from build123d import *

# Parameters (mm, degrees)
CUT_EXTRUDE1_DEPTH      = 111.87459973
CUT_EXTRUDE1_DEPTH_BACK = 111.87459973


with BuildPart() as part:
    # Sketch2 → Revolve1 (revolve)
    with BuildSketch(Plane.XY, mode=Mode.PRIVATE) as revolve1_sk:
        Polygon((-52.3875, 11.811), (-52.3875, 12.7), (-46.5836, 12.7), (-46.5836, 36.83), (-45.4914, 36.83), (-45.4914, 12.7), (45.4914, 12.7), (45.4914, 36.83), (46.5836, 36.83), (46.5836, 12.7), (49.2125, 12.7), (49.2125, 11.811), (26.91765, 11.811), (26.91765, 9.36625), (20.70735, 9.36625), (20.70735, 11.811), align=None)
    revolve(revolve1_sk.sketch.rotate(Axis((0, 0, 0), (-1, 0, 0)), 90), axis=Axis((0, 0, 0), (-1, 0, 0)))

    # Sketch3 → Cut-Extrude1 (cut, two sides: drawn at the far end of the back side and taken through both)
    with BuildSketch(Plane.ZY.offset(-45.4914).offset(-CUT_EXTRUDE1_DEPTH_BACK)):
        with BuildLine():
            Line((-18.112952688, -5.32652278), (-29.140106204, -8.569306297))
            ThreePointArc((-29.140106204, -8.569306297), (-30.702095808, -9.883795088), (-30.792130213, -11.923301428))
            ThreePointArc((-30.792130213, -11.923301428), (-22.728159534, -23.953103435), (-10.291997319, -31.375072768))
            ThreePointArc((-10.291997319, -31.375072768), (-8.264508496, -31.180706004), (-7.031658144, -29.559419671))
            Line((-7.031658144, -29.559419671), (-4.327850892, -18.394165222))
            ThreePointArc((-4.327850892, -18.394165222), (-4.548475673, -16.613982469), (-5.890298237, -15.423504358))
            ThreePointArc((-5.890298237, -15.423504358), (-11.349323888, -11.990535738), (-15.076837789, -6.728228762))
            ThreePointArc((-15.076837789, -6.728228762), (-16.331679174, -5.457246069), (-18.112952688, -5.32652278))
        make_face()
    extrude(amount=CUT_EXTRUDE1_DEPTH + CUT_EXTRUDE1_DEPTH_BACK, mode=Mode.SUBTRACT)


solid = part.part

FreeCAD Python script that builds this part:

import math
import FreeCAD as App
import Part
import Sketcher
Q = App.Units.Quantity


def add_polygon(sketch, points):
    """Adds a closed chain of lines whose ends are joined by coincident constraints."""
    first, n = sketch.GeometryCount, len(points)
    for a, b in zip(points, points[1:] + points[:1]):
        sketch.addGeometry(Part.LineSegment(App.Vector(*a, 0), App.Vector(*b, 0)), False)
    for i in range(n):
        sketch.addConstraint(Sketcher.Constraint("Coincident", first + i, 2, first + (i + 1) % n, 1))

doc = App.newDocument("Part")
body = doc.addObject("PartDesign::Body", "Body")

# Sketch on XY plane
sketch1 = body.newObject("Sketcher::SketchObject", "Sketch")
sketch1.AttachmentSupport = (doc.getObject("XY_Plane"), [""])
sketch1.MapMode = "FlatFace"
add_polygon(sketch1, [(-52.3875, 12.7), (-52.3875, 11.811), (20.70735, 11.811), (20.70735, 9.36625), (26.91765, 9.36625), (26.91765, 11.811), (49.2125, 11.811), (49.2125, 12.7), (46.5836, 12.7), (46.5836, 36.83), (45.4914, 36.83), (45.4914, 12.7), (-45.4914, 12.7), (-45.4914, 36.83), (-46.5836, 36.83), (-46.5836, 12.7)])  # lines 0-15
sketch1.addConstraint(Sketcher.Constraint("Vertical", 0))
sketch1.addConstraint(Sketcher.Constraint("Horizontal", 1))
sketch1.addConstraint(Sketcher.Constraint("Vertical", 2))
sketch1.addConstraint(Sketcher.Constraint("Horizontal", 3))
sketch1.addConstraint(Sketcher.Constraint("Vertical", 4))
sketch1.addConstraint(Sketcher.Constraint("Horizontal", 5))
sketch1.addConstraint(Sketcher.Constraint("Vertical", 6))
sketch1.addConstraint(Sketcher.Constraint("Horizontal", 7))
sketch1.addConstraint(Sketcher.Constraint("Vertical", 8))
sketch1.addConstraint(Sketcher.Constraint("Horizontal", 9))
sketch1.addConstraint(Sketcher.Constraint("Vertical", 10))
sketch1.addConstraint(Sketcher.Constraint("Horizontal", 11))
sketch1.addConstraint(Sketcher.Constraint("Vertical", 12))
sketch1.addConstraint(Sketcher.Constraint("Horizontal", 13))
sketch1.addConstraint(Sketcher.Constraint("Vertical", 14))
sketch1.addConstraint(Sketcher.Constraint("Horizontal", 15))
sketch1.addConstraint(Sketcher.Constraint("Symmetric", 9, 2, 12, 2, -2))
sketch1.addConstraint(Sketcher.Constraint("Symmetric", 7, 2, 14, 2, -2))
sketch1.addConstraint(Sketcher.Constraint("Horizontal", 1, 2, 4, 2))
sketch1.addConstraint(Sketcher.Constraint("Horizontal", 7, 2, 10, 2))
sketch1.addConstraint(Sketcher.Constraint("DistanceX", 0, 2, 5, 2, Q("4 in")))
sketch1.addConstraint(Sketcher.Constraint("DistanceY", 8, 1, 8, 2, Q("0.95 in")))
sketch1.addConstraint(Sketcher.Constraint("DistanceY", -1, 1, 6, 2, Q("0.5 in")))
sketch1.addConstraint(Sketcher.Constraint("DistanceX", 9, 2, 9, 1, Q("0.043 in")))
sketch1.addConstraint(Sketcher.Constraint("DistanceX", 11, 2, 11, 1, Q("3.582 in")))
sketch1.addConstraint(Sketcher.Constraint("DistanceY", 0, 2, 0, 1, Q("0.035 in")))
sketch1.addConstraint(Sketcher.Constraint("DistanceX", 3, 1, 3, 2, Q("0.2445 in")))
sketch1.addConstraint(Sketcher.Constraint("DistanceX", 7, 2, 7, 1, Q("0.1035 in")))
sketch1.addConstraint(Sketcher.Constraint("DistanceX", 1, 1, 1, 2, 73.09485))
sketch1.addConstraint(Sketcher.Constraint("DistanceY", 2, 2, 2, 1, 2.44475))
revolution = body.newObject("PartDesign::Revolution", "Revolution")
revolution.Profile = sketch1
revolution.ReferenceAxis = (sketch1, ["H_Axis"])
revolution.Angle = 360

# Sketch on YZ plane
sketch2 = body.newObject("Sketcher::SketchObject", "Sketch001")
sketch2.AttachmentSupport = (doc.getObject("YZ_Plane"), [""])
sketch2.MapMode = "FlatFace"
sketch2.AttachmentOffset = App.Placement(App.Vector(0, 0, 1.791 * 25.4), App.Rotation())
sketch2.addGeometry(Part.LineSegment(App.Vector(-5.326523, -18.112953, 0), App.Vector(-8.569306, -29.140106, 0)), False)
sketch2.addGeometry(Part.ArcOfCircle(Part.Circle(App.Vector(-11.006124, -28.423505, 0), App.Vector(0, 0, 1), 2.54), math.radians(-111.167356), math.radians(-16.387164)), False)
sketch2.addGeometry(Part.ArcOfCircle(Part.Circle(App.Vector(0, 0, 0), App.Vector(0, 0, 1), 33.02), math.radians(-161.838905), math.radians(-111.167356)), False)
sketch2.addGeometry(Part.ArcOfCircle(Part.Circle(App.Vector(-28.961606, -9.500305, 0), App.Vector(0, 0, 1), 2.54), math.radians(103.612836), math.radians(198.161095)), False)
sketch2.addGeometry(Part.LineSegment(App.Vector(-29.55942, -7.031658, 0), App.Vector(-18.394165, -4.327851, 0)), False)
sketch2.addGeometry(Part.ArcOfCircle(Part.Circle(App.Vector(-17.796351, -6.796498, 0), App.Vector(0, 0, 1), 2.54), math.radians(20.902057), math.radians(103.612836)), False)
sketch2.addGeometry(Part.ArcOfCircle(Part.Circle(App.Vector(0, 0, 0), App.Vector(0, 0, 1), 16.51), math.radians(-159.097942), math.radians(-114.04942)), False)
sketch2.addGeometry(Part.ArcOfCircle(Part.Circle(App.Vector(-7.763341, -17.396351, 0), App.Vector(0, 0, 1), 2.54), math.radians(-16.387164), math.radians(65.95058)), False)
sketch2.addConstraint(Sketcher.Constraint("Tangent", 0, 2, 1, 2))
sketch2.addConstraint(Sketcher.Constraint("Tangent", 1, 1, 2, 2))
sketch2.addConstraint(Sketcher.Constraint("Tangent", 2, 1, 3, 2))
sketch2.addConstraint(Sketcher.Constraint("Tangent", 3, 1, 4, 1))
sketch2.addConstraint(Sketcher.Constraint("Tangent", 4, 2, 5, 2))
sketch2.addConstraint(Sketcher.Constraint("Tangent", 5, 1, 6, 1))
sketch2.addConstraint(Sketcher.Constraint("Tangent", 6, 2, 7, 2))
sketch2.addConstraint(Sketcher.Constraint("Tangent", 7, 1, 0, 1))
sketch2.addConstraint(Sketcher.Constraint("Coincident", 2, 3, -1, 1))
sketch2.addConstraint(Sketcher.Constraint("Coincident", 6, 3, -1, 1))
sketch2.addConstraint(Sketcher.Constraint("Equal", 1, 3))
sketch2.addConstraint(Sketcher.Constraint("Equal", 3, 5))
sketch2.addConstraint(Sketcher.Constraint("Equal", 5, 7))
sketch2.addConstraint(Sketcher.Constraint("Radius", 1, Q("0.1 in")))
sketch2.addConstraint(Sketcher.Constraint("Radius", 2, Q("1.3 in")))
sketch2.addConstraint(Sketcher.Constraint("Radius", 6, Q("0.65 in")))
sketch2.addConstraint(Sketcher.Constraint("DistanceX", 1, 1, -1, 1, 11.923301))
sketch2.addConstraint(Sketcher.Constraint("DistanceY", 5, 1, -1, 1, 5.890298))
sketch2.addConstraint(Sketcher.Constraint("DistanceY", 1, 3, 3, 3, 18.9232))
sketch2.addConstraint(Sketcher.Constraint("DistanceY", 0, 2, 1, 3, 0.716601))
pocket1 = body.newObject("PartDesign::Pocket", "Pocket")
pocket1.Profile = sketch2
pocket1.Type = "ThroughAll"
pocket1.Midplane = True

doc.recompute()
